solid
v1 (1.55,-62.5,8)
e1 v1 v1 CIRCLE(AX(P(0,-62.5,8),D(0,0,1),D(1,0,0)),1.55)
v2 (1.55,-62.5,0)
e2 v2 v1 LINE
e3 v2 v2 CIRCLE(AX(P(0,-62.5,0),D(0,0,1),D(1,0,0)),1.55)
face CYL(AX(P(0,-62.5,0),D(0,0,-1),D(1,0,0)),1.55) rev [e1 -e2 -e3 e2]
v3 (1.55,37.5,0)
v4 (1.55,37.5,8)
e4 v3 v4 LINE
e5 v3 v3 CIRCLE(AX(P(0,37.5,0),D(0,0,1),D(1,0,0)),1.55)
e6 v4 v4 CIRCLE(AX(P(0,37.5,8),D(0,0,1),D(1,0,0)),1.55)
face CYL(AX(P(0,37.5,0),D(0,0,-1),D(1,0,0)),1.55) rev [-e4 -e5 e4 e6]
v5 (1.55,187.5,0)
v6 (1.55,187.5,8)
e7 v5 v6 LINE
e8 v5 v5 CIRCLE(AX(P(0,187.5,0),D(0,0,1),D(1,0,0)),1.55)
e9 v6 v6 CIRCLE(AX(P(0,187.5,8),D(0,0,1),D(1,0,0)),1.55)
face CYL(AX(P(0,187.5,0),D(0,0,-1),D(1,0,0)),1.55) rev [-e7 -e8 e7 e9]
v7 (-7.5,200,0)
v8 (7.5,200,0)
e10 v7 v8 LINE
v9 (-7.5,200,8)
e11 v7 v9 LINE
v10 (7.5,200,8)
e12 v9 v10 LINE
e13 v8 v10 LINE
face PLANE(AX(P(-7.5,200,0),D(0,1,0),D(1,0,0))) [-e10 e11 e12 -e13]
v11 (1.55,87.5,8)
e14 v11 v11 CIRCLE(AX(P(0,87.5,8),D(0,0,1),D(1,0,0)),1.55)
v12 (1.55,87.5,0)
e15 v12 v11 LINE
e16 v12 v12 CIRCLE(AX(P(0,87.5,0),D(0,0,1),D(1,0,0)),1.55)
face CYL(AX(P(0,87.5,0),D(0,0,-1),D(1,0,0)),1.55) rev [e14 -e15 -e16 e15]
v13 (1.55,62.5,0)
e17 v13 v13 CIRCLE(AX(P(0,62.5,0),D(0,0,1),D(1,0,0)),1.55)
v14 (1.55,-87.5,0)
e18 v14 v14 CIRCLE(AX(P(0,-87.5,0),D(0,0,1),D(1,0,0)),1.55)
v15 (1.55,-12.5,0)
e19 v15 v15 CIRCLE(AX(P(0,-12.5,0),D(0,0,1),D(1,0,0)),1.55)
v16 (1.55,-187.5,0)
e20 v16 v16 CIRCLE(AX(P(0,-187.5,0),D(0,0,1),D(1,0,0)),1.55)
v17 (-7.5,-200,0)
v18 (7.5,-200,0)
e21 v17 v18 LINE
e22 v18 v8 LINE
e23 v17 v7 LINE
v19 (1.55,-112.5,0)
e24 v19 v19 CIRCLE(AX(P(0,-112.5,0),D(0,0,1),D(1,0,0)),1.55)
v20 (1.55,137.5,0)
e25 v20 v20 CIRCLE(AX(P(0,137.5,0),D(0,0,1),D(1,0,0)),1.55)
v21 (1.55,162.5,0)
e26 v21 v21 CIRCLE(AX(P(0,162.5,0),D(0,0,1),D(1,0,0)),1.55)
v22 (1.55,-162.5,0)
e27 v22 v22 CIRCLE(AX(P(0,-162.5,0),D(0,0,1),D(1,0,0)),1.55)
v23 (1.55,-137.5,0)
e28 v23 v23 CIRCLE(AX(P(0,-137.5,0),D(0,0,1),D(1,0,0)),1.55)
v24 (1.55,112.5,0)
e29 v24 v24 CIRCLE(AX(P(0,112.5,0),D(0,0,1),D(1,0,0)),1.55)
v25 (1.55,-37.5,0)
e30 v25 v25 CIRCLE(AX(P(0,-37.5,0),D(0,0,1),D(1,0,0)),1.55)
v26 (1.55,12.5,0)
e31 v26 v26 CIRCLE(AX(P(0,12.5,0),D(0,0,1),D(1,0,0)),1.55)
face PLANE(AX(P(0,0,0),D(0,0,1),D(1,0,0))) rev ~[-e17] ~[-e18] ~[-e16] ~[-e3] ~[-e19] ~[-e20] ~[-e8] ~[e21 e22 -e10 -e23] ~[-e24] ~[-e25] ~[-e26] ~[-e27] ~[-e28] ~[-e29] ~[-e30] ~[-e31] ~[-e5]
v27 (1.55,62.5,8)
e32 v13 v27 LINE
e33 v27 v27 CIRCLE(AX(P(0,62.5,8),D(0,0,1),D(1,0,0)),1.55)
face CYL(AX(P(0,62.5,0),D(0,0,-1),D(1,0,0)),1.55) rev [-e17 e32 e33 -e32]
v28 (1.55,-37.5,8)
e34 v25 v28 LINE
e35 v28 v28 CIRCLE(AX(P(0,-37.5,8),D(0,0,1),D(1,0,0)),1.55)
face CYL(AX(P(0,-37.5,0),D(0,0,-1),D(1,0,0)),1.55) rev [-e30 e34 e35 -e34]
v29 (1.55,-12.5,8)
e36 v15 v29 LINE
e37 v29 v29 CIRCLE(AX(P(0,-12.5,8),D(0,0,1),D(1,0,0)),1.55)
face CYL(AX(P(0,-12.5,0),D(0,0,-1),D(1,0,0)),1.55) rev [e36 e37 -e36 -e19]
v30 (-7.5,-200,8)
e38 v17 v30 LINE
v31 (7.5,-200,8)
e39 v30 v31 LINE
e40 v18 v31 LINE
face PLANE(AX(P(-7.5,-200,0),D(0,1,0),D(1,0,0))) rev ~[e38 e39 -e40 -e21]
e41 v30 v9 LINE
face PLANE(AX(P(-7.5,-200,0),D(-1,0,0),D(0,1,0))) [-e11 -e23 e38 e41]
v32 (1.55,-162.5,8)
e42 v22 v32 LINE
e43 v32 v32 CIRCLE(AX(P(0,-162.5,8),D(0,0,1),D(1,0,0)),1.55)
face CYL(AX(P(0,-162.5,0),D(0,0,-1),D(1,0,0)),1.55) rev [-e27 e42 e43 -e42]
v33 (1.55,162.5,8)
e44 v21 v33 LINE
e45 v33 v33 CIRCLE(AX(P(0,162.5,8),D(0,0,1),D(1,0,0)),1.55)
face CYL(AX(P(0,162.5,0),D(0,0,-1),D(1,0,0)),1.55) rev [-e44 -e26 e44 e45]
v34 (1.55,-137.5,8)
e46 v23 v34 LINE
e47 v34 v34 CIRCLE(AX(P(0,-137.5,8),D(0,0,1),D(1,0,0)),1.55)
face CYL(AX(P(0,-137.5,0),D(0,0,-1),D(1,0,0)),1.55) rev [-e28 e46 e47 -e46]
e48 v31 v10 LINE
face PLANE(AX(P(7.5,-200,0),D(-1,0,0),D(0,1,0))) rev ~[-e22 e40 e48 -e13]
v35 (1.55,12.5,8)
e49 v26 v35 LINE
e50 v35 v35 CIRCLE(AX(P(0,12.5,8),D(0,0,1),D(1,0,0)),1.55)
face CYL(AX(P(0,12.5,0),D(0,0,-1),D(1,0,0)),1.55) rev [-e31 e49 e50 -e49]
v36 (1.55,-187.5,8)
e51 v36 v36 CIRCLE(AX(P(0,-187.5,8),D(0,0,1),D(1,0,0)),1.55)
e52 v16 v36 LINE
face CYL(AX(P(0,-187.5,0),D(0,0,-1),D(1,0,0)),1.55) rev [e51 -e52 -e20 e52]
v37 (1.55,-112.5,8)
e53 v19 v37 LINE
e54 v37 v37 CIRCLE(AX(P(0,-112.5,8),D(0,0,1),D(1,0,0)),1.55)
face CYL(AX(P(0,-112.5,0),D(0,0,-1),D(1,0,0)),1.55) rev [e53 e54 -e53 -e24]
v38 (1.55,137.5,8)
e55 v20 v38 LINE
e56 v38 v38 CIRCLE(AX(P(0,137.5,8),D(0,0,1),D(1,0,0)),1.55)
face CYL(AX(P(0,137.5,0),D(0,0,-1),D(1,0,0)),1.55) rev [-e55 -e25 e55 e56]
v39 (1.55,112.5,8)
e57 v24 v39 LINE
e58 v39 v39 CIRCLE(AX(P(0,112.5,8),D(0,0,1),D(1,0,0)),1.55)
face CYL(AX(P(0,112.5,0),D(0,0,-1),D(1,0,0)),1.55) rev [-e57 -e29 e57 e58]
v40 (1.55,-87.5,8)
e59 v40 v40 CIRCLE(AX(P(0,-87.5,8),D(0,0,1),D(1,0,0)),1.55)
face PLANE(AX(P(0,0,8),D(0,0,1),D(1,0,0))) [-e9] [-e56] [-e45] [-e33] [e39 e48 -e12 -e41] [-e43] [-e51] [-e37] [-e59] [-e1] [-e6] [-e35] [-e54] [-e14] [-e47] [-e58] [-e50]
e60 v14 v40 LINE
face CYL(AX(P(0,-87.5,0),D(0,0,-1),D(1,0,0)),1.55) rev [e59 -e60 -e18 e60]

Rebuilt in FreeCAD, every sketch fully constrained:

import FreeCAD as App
import Part
import Sketcher
Q = App.Units.Quantity

doc = App.newDocument("Part")
body = doc.addObject("PartDesign::Body", "Body")

# Sketch on XY plane
sketch1 = body.newObject("Sketcher::SketchObject", "Sketch")
sketch1.AttachmentSupport = (doc.getObject("XY_Plane"), [""])
sketch1.MapMode = "FlatFace"
sketch1.addGeometry([
    Part.LineSegment(App.Vector(-7.5, 200, 0), App.Vector(-7.5, -200, 0)),  # 0
    Part.LineSegment(App.Vector(-7.5, -200, 0), App.Vector(7.5, -200, 0)),  # 1
    Part.LineSegment(App.Vector(7.5, -200, 0), App.Vector(7.5, 200, 0)),  # 2
    Part.LineSegment(App.Vector(7.5, 200, 0), App.Vector(-7.5, 200, 0)),  # 3
    Part.Circle(App.Vector(0, -187.5, 0), App.Vector(0, 0, 1), 1.6),  # 4
    Part.Circle(App.Vector(0, -162.5, 0), App.Vector(0, 0, 1), 1.6),  # 5
    Part.Circle(App.Vector(0, -137.5, 0), App.Vector(0, 0, 1), 1.6),  # 6
    Part.Circle(App.Vector(0, -112.5, 0), App.Vector(0, 0, 1), 1.6),  # 7
    Part.Circle(App.Vector(0, -87.5, 0), App.Vector(0, 0, 1), 1.6),  # 8
    Part.Circle(App.Vector(0, -62.5, 0), App.Vector(0, 0, 1), 1.6),  # 9
    Part.Circle(App.Vector(0, -37.5, 0), App.Vector(0, 0, 1), 1.6),  # 10
    Part.Circle(App.Vector(0, -12.5, 0), App.Vector(0, 0, 1), 1.6),  # 11
    Part.Circle(App.Vector(0, 12.5, 0), App.Vector(0, 0, 1), 1.6),  # 12
    Part.Circle(App.Vector(0, 37.5, 0), App.Vector(0, 0, 1), 1.6),  # 13
    Part.Circle(App.Vector(0, 62.5, 0), App.Vector(0, 0, 1), 1.6),  # 14
    Part.Circle(App.Vector(0, 87.5, 0), App.Vector(0, 0, 1), 1.6),  # 15
    Part.Circle(App.Vector(0, 112.5, 0), App.Vector(0, 0, 1), 1.6),  # 16
    Part.Circle(App.Vector(0, 137.5, 0), App.Vector(0, 0, 1), 1.6),  # 17
    Part.Circle(App.Vector(0, 162.5, 0), App.Vector(0, 0, 1), 1.6),  # 18
    Part.Circle(App.Vector(0, 187.5, 0), App.Vector(0, 0, 1), 1.6),  # 19
], False)
sketch1.addConstraint([
    Sketcher.Constraint("Coincident", 0, 2, 1, 1),
    Sketcher.Constraint("Coincident", 1, 2, 2, 1),
    Sketcher.Constraint("Coincident", 2, 2, 3, 1),
    Sketcher.Constraint("Coincident", 3, 2, 0, 1),
    Sketcher.Constraint("Vertical", 0),
    Sketcher.Constraint("Horizontal", 1),
    Sketcher.Constraint("Vertical", 2),
    Sketcher.Constraint("Horizontal", 3),
    Sketcher.Constraint("Equal", 4, 5),
    Sketcher.Constraint("Equal", 5, 6),
    Sketcher.Constraint("Equal", 6, 7),
    Sketcher.Constraint("Equal", 7, 8),
    Sketcher.Constraint("Equal", 8, 9),
    Sketcher.Constraint("Equal", 9, 10),
    Sketcher.Constraint("Equal", 10, 11),
    Sketcher.Constraint("Equal", 11, 12),
    Sketcher.Constraint("Equal", 12, 13),
    Sketcher.Constraint("Equal", 13, 14),
    Sketcher.Constraint("Equal", 14, 15),
    Sketcher.Constraint("Equal", 15, 16),
    Sketcher.Constraint("Equal", 16, 17),
    Sketcher.Constraint("Equal", 17, 18),
    Sketcher.Constraint("Equal", 18, 19),
    Sketcher.Constraint("Symmetric", 11, 3, 12, 3, -1, 1),
    Sketcher.Constraint("Symmetric", 10, 3, 13, 3, -1, 1),
    Sketcher.Constraint("Symmetric", 9, 3, 14, 3, -1, 1),
    Sketcher.Constraint("Symmetric", 8, 3, 15, 3, -1, 1),
    Sketcher.Constraint("Symmetric", 7, 3, 16, 3, -1, 1),
    Sketcher.Constraint("Symmetric", 6, 3, 17, 3, -1, 1),
    Sketcher.Constraint("Symmetric", 5, 3, 18, 3, -1, 1),
    Sketcher.Constraint("Symmetric", 4, 3, 19, 3, -1, 1),
    Sketcher.Constraint("Symmetric", 0, 2, 2, 2, -1, 1),
    Sketcher.Constraint("PointOnObject", 4, 3, -2),
    Sketcher.Constraint("PointOnObject", 5, 3, -2),
    Sketcher.Constraint("PointOnObject", 6, 3, -2),
    Sketcher.Constraint("PointOnObject", 7, 3, -2),
    Sketcher.Constraint("PointOnObject", 8, 3, -2),
    Sketcher.Constraint("PointOnObject", 9, 3, -2),
    Sketcher.Constraint("PointOnObject", 10, 3, -2),
    Sketcher.Constraint("PointOnObject", 11, 3, -2),
    Sketcher.Constraint("Diameter", 4, Q("3.1 mm")),
    Sketcher.Constraint("DistanceX", 1, 1, 1, 2, Q("15 mm")),
    Sketcher.Constraint("DistanceY", 0, 2, 0, 1, Q("400 mm")),
    Sketcher.Constraint("DistanceY", 4, 3, 5, 3, Q("25 mm")),
    Sketcher.Constraint("DistanceY", 5, 3, 6, 3, Q("25 mm")),
    Sketcher.Constraint("DistanceY", 6, 3, 7, 3, Q("25 mm")),
    Sketcher.Constraint("DistanceY", 7, 3, 8, 3, Q("25 mm")),
    Sketcher.Constraint("DistanceY", 8, 3, 9, 3, Q("25 mm")),
    Sketcher.Constraint("DistanceY", 9, 3, 10, 3, Q("25 mm")),
    Sketcher.Constraint("DistanceY", 10, 3, 11, 3, Q("25 mm")),
    Sketcher.Constraint("DistanceY", 11, 3, 12, 3, Q("25 mm")),
])
pad1 = body.newObject("PartDesign::Pad", "Pad")
pad1.Profile = sketch1
pad1.Length = 8

doc.recompute()
